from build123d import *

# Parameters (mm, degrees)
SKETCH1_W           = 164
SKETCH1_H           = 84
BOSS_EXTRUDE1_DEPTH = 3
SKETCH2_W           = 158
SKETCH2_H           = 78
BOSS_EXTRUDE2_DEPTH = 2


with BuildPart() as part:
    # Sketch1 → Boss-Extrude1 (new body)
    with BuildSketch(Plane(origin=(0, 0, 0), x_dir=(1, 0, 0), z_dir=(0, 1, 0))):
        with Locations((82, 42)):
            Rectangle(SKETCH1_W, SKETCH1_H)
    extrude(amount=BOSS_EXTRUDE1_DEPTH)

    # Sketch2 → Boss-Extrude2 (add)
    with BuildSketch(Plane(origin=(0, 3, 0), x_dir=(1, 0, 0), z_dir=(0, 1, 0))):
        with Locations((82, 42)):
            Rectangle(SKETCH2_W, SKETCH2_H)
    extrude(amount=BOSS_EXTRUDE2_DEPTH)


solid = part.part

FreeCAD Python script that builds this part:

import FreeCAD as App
import Part
import Sketcher
from FreeCAD import Vector
Q = App.Units.Quantity

doc = App.newDocument("Part")
body = doc.addObject("PartDesign::Body", "Body")

# Sketch on XZ plane
sketch1 = body.newObject("Sketcher::SketchObject", "Sketch")
sketch1.AttachmentSupport = (doc.getObject("XZ_Plane"), [""])
sketch1.MapMode = "FlatFace"
sketch1.addGeometry([
    Part.LineSegment(Vector(0, -84, 0), Vector(0, 0, 0)),
    Part.LineSegment(Vector(0, 0, 0), Vector(164, 0, 0)),
    Part.LineSegment(Vector(164, 0, 0), Vector(164, -84, 0)),
    Part.LineSegment(Vector(164, -84, 0), Vector(0, -84, 0)),
], False)
sketch1.addConstraint([
    Sketcher.Constraint("Coincident", 0, 2, 1, 1),
    Sketcher.Constraint("Coincident", 1, 2, 2, 1),
    Sketcher.Constraint("Coincident", 2, 2, 3, 1),
    Sketcher.Constraint("Coincident", 3, 2, 0, 1),
    Sketcher.Constraint("Vertical", 0),
    Sketcher.Constraint("Horizontal", 1),
    Sketcher.Constraint("Vertical", 2),
    Sketcher.Constraint("Horizontal", 3),
    Sketcher.Constraint("Coincident", 0, 2, -1, 1),
    Sketcher.Constraint("DistanceX", 1, 1, 1, 2, Q("164 mm")),
    Sketcher.Constraint("DistanceY", 0, 1, 0, 2, Q("84 mm")),
])
pad1 = body.newObject("PartDesign::Pad", "Pad")
pad1.Profile = sketch1
pad1.Length = 3
pad1.Reversed = True

# Sketch on XZ plane
sketch2 = body.newObject("Sketcher::SketchObject", "Sketch001")
sketch2.AttachmentSupport = (doc.getObject("XZ_Plane"), [""])
sketch2.MapMode = "FlatFace"
sketch2.AttachmentOffset = App.Placement(Vector(0, 0, -3), App.Rotation())
sketch2.addGeometry([
    Part.LineSegment(Vector(3, -81, 0), Vector(3, -3, 0)),
    Part.LineSegment(Vector(3, -3, 0), Vector(161, -3, 0)),
    Part.LineSegment(Vector(161, -3, 0), Vector(161, -81, 0)),
    Part.LineSegment(Vector(161, -81, 0), Vector(3, -81, 0)),
], False)
sketch2.addConstraint([
    Sketcher.Constraint("Coincident", 0, 2, 1, 1),
    Sketcher.Constraint("Coincident", 1, 2, 2, 1),
    Sketcher.Constraint("Coincident", 2, 2, 3, 1),
    Sketcher.Constraint("Coincident", 3, 2, 0, 1),
    Sketcher.Constraint("Vertical", 0),
    Sketcher.Constraint("Horizontal", 1),
    Sketcher.Constraint("Vertical", 2),
    Sketcher.Constraint("Horizontal", 3),
    Sketcher.Constraint("DistanceX", 1, 1, 1, 2, Q("158 mm")),
    Sketcher.Constraint("DistanceY", 0, 1, 0, 2, Q("78 mm")),
    Sketcher.Constraint("DistanceX", -1, 1, 0, 2, Q("3 mm")),
    Sketcher.Constraint("DistanceY", 0, 2, -1, 1, Q("3 mm")),
])
pad2 = body.newObject("PartDesign::Pad", "Pad001")
pad2.Profile = sketch2
pad2.Length = 2
pad2.Reversed = True

doc.recompute()
